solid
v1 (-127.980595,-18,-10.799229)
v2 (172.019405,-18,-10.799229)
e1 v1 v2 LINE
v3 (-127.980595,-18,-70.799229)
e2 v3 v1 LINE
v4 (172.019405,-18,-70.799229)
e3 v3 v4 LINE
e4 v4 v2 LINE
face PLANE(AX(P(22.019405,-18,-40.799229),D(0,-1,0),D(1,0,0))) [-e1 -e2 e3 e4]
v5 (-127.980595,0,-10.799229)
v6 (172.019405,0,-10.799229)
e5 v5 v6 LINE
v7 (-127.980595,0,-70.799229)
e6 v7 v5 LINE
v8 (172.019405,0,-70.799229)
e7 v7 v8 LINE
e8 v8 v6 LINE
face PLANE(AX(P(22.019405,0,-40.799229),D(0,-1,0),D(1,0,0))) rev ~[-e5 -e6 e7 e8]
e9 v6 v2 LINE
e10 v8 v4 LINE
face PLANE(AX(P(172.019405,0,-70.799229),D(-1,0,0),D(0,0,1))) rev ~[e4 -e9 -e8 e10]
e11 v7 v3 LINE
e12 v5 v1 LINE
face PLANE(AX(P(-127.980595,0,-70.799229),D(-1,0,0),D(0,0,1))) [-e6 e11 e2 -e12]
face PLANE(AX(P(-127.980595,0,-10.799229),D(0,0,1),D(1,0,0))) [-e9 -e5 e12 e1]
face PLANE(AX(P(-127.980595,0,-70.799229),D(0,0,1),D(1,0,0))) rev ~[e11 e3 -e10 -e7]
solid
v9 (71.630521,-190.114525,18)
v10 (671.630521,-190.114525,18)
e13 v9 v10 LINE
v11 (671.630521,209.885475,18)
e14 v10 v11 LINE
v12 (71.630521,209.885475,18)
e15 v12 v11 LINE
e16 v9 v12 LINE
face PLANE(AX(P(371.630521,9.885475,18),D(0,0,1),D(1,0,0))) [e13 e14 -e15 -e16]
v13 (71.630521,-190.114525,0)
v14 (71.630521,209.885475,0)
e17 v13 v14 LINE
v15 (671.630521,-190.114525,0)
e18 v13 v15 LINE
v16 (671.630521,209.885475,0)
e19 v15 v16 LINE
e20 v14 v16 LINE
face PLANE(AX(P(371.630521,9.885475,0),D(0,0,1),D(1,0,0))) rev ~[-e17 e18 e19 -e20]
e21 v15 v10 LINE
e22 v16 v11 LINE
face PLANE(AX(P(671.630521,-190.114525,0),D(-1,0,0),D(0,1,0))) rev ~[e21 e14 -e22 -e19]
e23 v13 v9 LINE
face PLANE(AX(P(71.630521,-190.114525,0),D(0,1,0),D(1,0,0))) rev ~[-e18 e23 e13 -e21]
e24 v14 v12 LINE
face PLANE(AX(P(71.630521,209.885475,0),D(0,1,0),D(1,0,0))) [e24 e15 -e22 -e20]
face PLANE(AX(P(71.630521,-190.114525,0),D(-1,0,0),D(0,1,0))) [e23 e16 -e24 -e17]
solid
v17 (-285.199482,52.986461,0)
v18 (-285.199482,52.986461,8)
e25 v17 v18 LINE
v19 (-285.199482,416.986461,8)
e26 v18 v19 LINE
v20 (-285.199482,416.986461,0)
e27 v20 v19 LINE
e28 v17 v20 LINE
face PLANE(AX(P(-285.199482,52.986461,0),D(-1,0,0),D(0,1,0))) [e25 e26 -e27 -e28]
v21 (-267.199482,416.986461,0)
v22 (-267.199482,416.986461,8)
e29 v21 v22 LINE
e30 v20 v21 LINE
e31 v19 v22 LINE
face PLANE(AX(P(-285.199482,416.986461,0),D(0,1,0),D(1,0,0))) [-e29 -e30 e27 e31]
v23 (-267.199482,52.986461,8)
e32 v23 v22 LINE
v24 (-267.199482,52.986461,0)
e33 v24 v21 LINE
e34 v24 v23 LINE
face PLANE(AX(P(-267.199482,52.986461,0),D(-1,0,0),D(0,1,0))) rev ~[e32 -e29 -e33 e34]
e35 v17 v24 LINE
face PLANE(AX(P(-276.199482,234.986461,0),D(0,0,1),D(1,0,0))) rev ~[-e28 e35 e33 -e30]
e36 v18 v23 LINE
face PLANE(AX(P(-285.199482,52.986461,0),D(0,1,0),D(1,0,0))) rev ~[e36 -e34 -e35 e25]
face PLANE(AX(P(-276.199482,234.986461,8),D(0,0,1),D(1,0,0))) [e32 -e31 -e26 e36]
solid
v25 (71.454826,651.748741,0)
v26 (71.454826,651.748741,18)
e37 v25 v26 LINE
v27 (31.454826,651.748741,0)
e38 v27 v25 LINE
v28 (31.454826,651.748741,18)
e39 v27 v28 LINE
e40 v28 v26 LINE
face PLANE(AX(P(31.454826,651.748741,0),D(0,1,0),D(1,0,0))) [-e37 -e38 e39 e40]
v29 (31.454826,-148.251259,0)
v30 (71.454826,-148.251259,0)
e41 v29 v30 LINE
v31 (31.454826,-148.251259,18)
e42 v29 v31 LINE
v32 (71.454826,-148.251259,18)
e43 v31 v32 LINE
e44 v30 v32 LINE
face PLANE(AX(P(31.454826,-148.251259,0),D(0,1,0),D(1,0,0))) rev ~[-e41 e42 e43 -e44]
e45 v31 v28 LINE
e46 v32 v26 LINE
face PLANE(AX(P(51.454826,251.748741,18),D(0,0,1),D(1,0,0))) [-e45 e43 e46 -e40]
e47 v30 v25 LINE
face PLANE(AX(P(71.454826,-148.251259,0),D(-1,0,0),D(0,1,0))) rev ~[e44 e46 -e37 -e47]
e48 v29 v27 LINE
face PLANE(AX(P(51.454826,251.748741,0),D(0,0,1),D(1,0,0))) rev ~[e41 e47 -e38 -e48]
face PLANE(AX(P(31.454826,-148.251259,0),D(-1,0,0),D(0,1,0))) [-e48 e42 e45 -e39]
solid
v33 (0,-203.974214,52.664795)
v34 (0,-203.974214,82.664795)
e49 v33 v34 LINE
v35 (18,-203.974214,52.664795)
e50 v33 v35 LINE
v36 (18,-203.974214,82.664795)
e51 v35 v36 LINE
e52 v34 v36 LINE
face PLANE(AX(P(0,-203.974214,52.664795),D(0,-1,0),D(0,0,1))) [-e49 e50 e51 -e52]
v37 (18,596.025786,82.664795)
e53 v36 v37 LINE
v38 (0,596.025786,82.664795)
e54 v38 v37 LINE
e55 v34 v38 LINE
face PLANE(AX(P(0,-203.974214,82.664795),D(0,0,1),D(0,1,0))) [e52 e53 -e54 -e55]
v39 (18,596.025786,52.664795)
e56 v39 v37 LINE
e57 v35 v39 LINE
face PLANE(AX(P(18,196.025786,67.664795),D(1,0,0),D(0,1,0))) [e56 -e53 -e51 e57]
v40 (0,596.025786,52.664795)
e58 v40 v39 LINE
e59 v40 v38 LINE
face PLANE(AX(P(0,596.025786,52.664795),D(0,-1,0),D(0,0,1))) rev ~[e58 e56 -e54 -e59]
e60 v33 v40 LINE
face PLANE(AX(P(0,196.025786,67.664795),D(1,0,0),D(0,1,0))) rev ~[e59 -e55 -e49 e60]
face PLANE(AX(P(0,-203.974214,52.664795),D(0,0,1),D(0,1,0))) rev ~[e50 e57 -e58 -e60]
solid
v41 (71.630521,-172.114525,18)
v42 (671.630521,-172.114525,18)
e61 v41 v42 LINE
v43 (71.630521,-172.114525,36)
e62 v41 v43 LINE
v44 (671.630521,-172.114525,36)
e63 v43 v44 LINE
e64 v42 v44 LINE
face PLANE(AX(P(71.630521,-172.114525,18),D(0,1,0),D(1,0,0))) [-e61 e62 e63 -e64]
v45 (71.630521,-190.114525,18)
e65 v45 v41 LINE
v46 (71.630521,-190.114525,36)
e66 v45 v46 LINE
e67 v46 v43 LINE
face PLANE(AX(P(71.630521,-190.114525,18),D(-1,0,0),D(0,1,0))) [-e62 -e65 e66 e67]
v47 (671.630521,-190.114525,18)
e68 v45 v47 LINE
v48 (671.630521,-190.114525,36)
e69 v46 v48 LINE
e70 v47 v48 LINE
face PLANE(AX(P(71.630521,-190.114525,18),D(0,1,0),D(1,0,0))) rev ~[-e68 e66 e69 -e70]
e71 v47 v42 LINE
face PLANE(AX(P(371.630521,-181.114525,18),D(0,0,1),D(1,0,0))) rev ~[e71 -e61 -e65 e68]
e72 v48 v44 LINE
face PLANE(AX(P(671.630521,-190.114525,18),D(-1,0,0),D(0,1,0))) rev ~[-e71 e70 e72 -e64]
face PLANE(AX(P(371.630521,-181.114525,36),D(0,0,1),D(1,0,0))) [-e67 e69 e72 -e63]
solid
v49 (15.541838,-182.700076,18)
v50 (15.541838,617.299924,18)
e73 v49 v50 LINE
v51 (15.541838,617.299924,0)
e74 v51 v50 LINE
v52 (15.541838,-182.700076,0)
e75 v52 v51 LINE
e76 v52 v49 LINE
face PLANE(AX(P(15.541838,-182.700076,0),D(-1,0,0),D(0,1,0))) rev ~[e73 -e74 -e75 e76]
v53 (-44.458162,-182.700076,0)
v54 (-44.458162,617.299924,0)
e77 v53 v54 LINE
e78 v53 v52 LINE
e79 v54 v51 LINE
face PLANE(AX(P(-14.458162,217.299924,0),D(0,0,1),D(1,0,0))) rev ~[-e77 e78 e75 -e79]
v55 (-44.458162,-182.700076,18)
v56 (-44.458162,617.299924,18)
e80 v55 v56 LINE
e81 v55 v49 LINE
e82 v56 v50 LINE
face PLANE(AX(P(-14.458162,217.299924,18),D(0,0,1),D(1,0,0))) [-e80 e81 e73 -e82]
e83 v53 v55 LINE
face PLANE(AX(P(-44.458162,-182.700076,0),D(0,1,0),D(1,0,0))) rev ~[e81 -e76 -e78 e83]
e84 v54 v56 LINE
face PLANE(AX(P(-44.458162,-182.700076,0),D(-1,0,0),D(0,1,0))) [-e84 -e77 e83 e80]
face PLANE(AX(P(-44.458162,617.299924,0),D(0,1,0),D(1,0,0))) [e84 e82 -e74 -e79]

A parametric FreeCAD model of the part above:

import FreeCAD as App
import Part
import Sketcher


def add_polygon(sketch, points):
    """Adds a closed chain of lines whose ends are joined by coincident constraints."""
    first, n = sketch.GeometryCount, len(points)
    for a, b in zip(points, points[1:] + points[:1]):
        sketch.addGeometry(Part.LineSegment(App.Vector(*a, 0), App.Vector(*b, 0)), False)
    for i in range(n):
        sketch.addConstraint(Sketcher.Constraint("Coincident", first + i, 2, first + (i + 1) % n, 1))

doc = App.newDocument("Part")
params = doc.addObject("Spreadsheet::Sheet", "Params")
for row, (alias, value) in enumerate([
    ("sketch1_width", "60 mm"),
    ("sketch1_height", "800 mm"),
    ("pad1_length", "18 mm"),
    ("sketch2_width", "40 mm"),
    ("sketch2_height", "800 mm"),
    ("pad2_length", "18 mm"),
    ("sketch3_width", "800 mm"),
    ("sketch3_height", "30 mm"),
    ("pad3_length", "18 mm"),
    ("sketch4_width", "300 mm"),
    ("sketch4_height", "60 mm"),
    ("pad4_length", "18 mm"),
    ("sketch5_width", "600 mm"),
    ("sketch5_height", "400 mm"),
    ("pad5_length", "18 mm"),
    ("sketch6_width", "600 mm"),
    ("sketch6_height", "18 mm"),
    ("pad6_length", "18 mm"),
    ("sketch7_width", "18 mm"),
    ("sketch7_height", "364 mm"),
    ("pad7_length", "8 mm"),
], start=1):
    params.set(f"A{row}", alias)
    params.set(f"B{row}", "=" + value)
    params.setAlias(f"B{row}", alias)

body = doc.addObject("PartDesign::Body", "Body")

sketch1 = body.newObject("Sketcher::SketchObject", "Sketch")
sketch1.AttachmentSupport = (doc.getObject("XY_Plane"), [""])
sketch1.MapMode = "FlatFace"
add_polygon(sketch1, [(-44, 617), (-44, -183), (16, -183), (16, 617)])
sketch1.addConstraint([
    Sketcher.Constraint("Vertical", 0),
    Sketcher.Constraint("Horizontal", 1),
    Sketcher.Constraint("Vertical", 2),
    Sketcher.Constraint("Horizontal", 3),
    Sketcher.Constraint("DistanceX", 1, 1, 1, 2, 60.0),
    Sketcher.Constraint("DistanceY", 0, 2, 0, 1, 800.0),
    Sketcher.Constraint("DistanceX", 0, 2, -1, 1, 44.458162),
    Sketcher.Constraint("DistanceY", 0, 2, -1, 1, 182.700076),
])
sketch1.setExpression("Constraints[8]", "Params.sketch1_width")
sketch1.setExpression("Constraints[9]", "Params.sketch1_height")
pad1 = body.newObject("PartDesign::Pad", "Pad")
pad1.Profile = sketch1
pad1.setExpression("Length", "Params.pad1_length")
body2 = doc.addObject("PartDesign::Body", "Body001")

sketch2 = body2.newObject("Sketcher::SketchObject", "Sketch001")
sketch2.AttachmentSupport = (doc.getObject("XY_Plane001"), [""])
sketch2.MapMode = "FlatFace"
add_polygon(sketch2, [(31, 652), (31, -148), (71, -148), (71, 652)])
sketch2.addConstraint([
    Sketcher.Constraint("Vertical", 0),
    Sketcher.Constraint("Horizontal", 1),
    Sketcher.Constraint("Vertical", 2),
    Sketcher.Constraint("Horizontal", 3),
    Sketcher.Constraint("DistanceX", 1, 1, 1, 2, 40.0),
    Sketcher.Constraint("DistanceY", 0, 2, 0, 1, 800.0),
    Sketcher.Constraint("DistanceY", 0, 2, -1, 1, 148.251259),
    Sketcher.Constraint("DistanceX", -1, 1, 0, 2, 31.454826),
])
sketch2.setExpression("Constraints[8]", "Params.sketch2_width")
sketch2.setExpression("Constraints[9]", "Params.sketch2_height")
pad2 = body2.newObject("PartDesign::Pad", "Pad001")
pad2.Profile = sketch2
pad2.setExpression("Length", "Params.pad2_length")
body3 = doc.addObject("PartDesign::Body", "Body002")

sketch3 = body3.newObject("Sketcher::SketchObject", "Sketch002")
sketch3.AttachmentSupport = (doc.getObject("YZ_Plane002"), [""])
sketch3.MapMode = "FlatFace"
add_polygon(sketch3, [(-204, 83), (-204, 53), (596, 53), (596, 83)])
sketch3.addConstraint([
    Sketcher.Constraint("Vertical", 0),
    Sketcher.Constraint("Horizontal", 1),
    Sketcher.Constraint("Vertical", 2),
    Sketcher.Constraint("Horizontal", 3),
    Sketcher.Constraint("DistanceX", 1, 1, 1, 2, 800.0),
    Sketcher.Constraint("DistanceY", 0, 2, 0, 1, 30.0),
    Sketcher.Constraint("DistanceX", 0, 2, -1, 1, 203.974214),
    Sketcher.Constraint("DistanceY", -1, 1, 0, 2, 52.664795),
])
sketch3.setExpression("Constraints[8]", "Params.sketch3_width")
sketch3.setExpression("Constraints[9]", "Params.sketch3_height")
pad3 = body3.newObject("PartDesign::Pad", "Pad002")
pad3.Profile = sketch3
pad3.setExpression("Length", "Params.pad3_length")
body4 = doc.addObject("PartDesign::Body", "Body003")

sketch4 = body4.newObject("Sketcher::SketchObject", "Sketch003")
sketch4.AttachmentSupport = (doc.getObject("XZ_Plane003"), [""])
sketch4.MapMode = "FlatFace"
add_polygon(sketch4, [(-128, -11), (-128, -71), (172, -71), (172, -11)])
sketch4.addConstraint([
    Sketcher.Constraint("Vertical", 0),
    Sketcher.Constraint("Horizontal", 1),
    Sketcher.Constraint("Vertical", 2),
    Sketcher.Constraint("Horizontal", 3),
    Sketcher.Constraint("DistanceX", 1, 1, 1, 2, 300.0),
    Sketcher.Constraint("DistanceY", 0, 2, 0, 1, 60.0),
    Sketcher.Constraint("DistanceY", 0, 2, -1, 1, 70.799229),
    Sketcher.Constraint("DistanceX", 0, 2, -1, 1, 127.980595),
])
sketch4.setExpression("Constraints[8]", "Params.sketch4_width")
sketch4.setExpression("Constraints[9]", "Params.sketch4_height")
pad4 = body4.newObject("PartDesign::Pad", "Pad003")
pad4.Profile = sketch4
pad4.setExpression("Length", "Params.pad4_length")
body5 = doc.addObject("PartDesign::Body", "Body004")

sketch5 = body5.newObject("Sketcher::SketchObject", "Sketch004")
sketch5.AttachmentSupport = (doc.getObject("XY_Plane004"), [""])
sketch5.MapMode = "FlatFace"
add_polygon(sketch5, [(72, 210), (72, -190), (672, -190), (672, 210)])
sketch5.addConstraint([
    Sketcher.Constraint("Vertical", 0),
    Sketcher.Constraint("Horizontal", 1),
    Sketcher.Constraint("Vertical", 2),
    Sketcher.Constraint("Horizontal", 3),
    Sketcher.Constraint("DistanceX", 1, 1, 1, 2, 600.0),
    Sketcher.Constraint("DistanceY", 0, 2, 0, 1, 400.0),
    Sketcher.Constraint("DistanceX", -1, 1, 0, 2, 71.630521),
    Sketcher.Constraint("DistanceY", 0, 2, -1, 1, 190.114525),
])
sketch5.setExpression("Constraints[8]", "Params.sketch5_width")
sketch5.setExpression("Constraints[9]", "Params.sketch5_height")
pad5 = body5.newObject("PartDesign::Pad", "Pad004")
pad5.Profile = sketch5
pad5.setExpression("Length", "Params.pad5_length")
body6 = doc.addObject("PartDesign::Body", "Body005")

sketch6 = body6.newObject("Sketcher::SketchObject", "Sketch005")
sketch6.AttachmentSupport = (doc.getObject("XY_Plane005"), [""])
sketch6.MapMode = "FlatFace"
sketch6.AttachmentOffset = App.Placement(App.Vector(0, 0, 18), App.Rotation())
add_polygon(sketch6, [(72, -172), (72, -190), (672, -190), (672, -172)])
sketch6.addConstraint([
    Sketcher.Constraint("Vertical", 0),
    Sketcher.Constraint("Horizontal", 1),
    Sketcher.Constraint("Vertical", 2),
    Sketcher.Constraint("Horizontal", 3),
    Sketcher.Constraint("DistanceX", 1, 1, 1, 2, 600.0),
    Sketcher.Constraint("DistanceY", 0, 2, 0, 1, 18.0),
    Sketcher.Constraint("DistanceX", -1, 1, 0, 2, 71.630521),
    Sketcher.Constraint("DistanceY", 0, 2, -1, 1, 190.114525),
])
sketch6.setExpression("Constraints[8]", "Params.sketch6_width")
sketch6.setExpression("Constraints[9]", "Params.sketch6_height")
pad6 = body6.newObject("PartDesign::Pad", "Pad005")
pad6.Profile = sketch6
pad6.setExpression("Length", "Params.pad6_length")
body7 = doc.addObject("PartDesign::Body", "Body006")

sketch7 = body7.newObject("Sketcher::SketchObject", "Sketch006")
sketch7.AttachmentSupport = (doc.getObject("XY_Plane006"), [""])
sketch7.MapMode = "FlatFace"
add_polygon(sketch7, [(-285, 417), (-285, 53), (-267, 53), (-267, 417)])
sketch7.addConstraint([
    Sketcher.Constraint("Vertical", 0),
    Sketcher.Constraint("Horizontal", 1),
    Sketcher.Constraint("Vertical", 2),
    Sketcher.Constraint("Horizontal", 3),
    Sketcher.Constraint("DistanceX", 1, 1, 1, 2, 18.0),
    Sketcher.Constraint("DistanceY", 0, 2, 0, 1, 364.0),
    Sketcher.Constraint("DistanceX", 0, 2, -1, 1, 285.199482),
    Sketcher.Constraint("DistanceY", -1, 1, 0, 2, 52.986461),
])
sketch7.setExpression("Constraints[8]", "Params.sketch7_width")
sketch7.setExpression("Constraints[9]", "Params.sketch7_height")
pad7 = body7.newObject("PartDesign::Pad", "Pad006")
pad7.Profile = sketch7
pad7.setExpression("Length", "Params.pad7_length")

doc.recompute()
